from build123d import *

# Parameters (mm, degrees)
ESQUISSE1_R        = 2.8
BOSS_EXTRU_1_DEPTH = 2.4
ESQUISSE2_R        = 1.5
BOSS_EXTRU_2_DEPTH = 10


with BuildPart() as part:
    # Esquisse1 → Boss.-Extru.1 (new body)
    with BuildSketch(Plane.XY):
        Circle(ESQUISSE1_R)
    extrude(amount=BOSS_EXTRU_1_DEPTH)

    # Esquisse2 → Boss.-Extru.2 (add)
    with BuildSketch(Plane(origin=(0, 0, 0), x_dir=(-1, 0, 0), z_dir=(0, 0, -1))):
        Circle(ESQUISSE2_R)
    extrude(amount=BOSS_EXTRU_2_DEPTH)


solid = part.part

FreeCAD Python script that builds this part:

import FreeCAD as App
import Part
import Sketcher

V = App.Vector
Q = App.Units.Quantity

doc = App.newDocument("Part")
body = doc.addObject("PartDesign::Body", "Body")

# Sketch on XY plane
sketch1 = body.newObject("Sketcher::SketchObject", "Sketch")
sketch1.AttachmentSupport = (doc.getObject("XY_Plane"), [""])
sketch1.MapMode = "FlatFace"
sketch1.addGeometry(Part.Circle(V(0, 0, 0), V(0, 0, 1), 2.8), False)
sketch1.addConstraint([
    Sketcher.Constraint("Coincident", 0, 3, -1, 1),
    Sketcher.Constraint("Diameter", 0, Q("5.6 mm")),
])
pad1 = body.newObject("PartDesign::Pad", "Pad")
pad1.Profile = sketch1
pad1.Length = 2.4

# Sketch on XY plane
sketch2 = body.newObject("Sketcher::SketchObject", "Sketch001")
sketch2.AttachmentSupport = (doc.getObject("XY_Plane"), [""])
sketch2.MapMode = "FlatFace"
sketch2.addGeometry(Part.Circle(V(0, 0, 0), V(0, 0, 1), 1.5), False)
sketch2.addConstraint([
    Sketcher.Constraint("Coincident", 0, 3, -1, 1),
    Sketcher.Constraint("Diameter", 0, Q("3 mm")),
])
pad2 = body.newObject("PartDesign::Pad", "Pad001")
pad2.Profile = sketch2
pad2.Length = 10
pad2.Reversed = True

doc.recompute()
